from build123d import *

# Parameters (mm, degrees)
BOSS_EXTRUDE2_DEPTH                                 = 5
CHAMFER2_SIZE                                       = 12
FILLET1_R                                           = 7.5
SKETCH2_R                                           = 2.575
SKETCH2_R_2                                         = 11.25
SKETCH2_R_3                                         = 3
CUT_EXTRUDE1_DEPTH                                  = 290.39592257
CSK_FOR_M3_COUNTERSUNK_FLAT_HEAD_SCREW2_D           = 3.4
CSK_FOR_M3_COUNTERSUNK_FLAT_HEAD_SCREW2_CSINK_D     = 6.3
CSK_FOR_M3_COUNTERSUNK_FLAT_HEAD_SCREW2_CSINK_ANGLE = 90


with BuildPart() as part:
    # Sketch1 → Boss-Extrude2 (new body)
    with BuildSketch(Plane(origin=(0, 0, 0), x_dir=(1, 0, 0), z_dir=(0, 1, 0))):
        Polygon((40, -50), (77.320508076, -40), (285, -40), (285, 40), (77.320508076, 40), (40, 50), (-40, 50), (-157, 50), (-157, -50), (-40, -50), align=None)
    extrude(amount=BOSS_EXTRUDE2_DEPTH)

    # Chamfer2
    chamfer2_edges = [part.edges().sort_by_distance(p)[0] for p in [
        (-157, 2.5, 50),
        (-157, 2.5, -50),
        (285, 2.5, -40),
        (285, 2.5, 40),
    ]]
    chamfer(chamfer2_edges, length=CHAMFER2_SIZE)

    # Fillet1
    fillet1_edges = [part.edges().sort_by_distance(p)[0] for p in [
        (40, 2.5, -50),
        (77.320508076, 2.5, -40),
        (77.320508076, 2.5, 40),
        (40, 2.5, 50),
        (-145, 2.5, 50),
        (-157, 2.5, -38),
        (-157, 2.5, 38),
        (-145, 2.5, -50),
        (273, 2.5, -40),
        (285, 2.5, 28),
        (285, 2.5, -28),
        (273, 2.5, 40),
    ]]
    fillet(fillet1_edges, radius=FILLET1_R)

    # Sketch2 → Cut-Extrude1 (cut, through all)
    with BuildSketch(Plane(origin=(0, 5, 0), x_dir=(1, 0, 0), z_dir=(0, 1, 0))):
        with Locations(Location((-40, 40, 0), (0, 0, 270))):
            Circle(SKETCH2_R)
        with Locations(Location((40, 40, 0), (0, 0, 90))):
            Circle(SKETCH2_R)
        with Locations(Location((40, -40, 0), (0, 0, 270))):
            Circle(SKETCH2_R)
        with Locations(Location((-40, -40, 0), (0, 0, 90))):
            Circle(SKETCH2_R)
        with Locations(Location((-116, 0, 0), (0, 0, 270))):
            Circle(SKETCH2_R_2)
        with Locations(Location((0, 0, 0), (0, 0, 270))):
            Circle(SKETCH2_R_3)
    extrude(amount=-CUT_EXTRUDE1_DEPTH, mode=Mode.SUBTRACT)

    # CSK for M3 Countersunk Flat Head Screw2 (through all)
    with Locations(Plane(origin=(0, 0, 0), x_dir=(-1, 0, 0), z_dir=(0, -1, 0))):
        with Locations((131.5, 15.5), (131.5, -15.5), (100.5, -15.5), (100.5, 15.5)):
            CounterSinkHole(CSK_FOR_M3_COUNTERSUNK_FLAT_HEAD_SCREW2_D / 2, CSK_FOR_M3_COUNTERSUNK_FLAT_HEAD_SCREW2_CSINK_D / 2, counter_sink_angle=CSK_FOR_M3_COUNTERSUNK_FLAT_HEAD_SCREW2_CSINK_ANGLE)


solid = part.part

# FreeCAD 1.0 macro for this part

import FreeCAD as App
import Part
import Sketcher
from FreeCAD import Vector
Q = App.Units.Quantity


def edges_at(feature, points):
    """Names of the edges that pass closest to the given points."""
    edges = feature.Shape.Edges
    near = lambda p: min(range(len(edges)), key=lambda i: edges[i].distToShape(Part.Vertex(*p))[0])
    return sorted({f"Edge{near(p) + 1}" for p in points})


def add_polygon(sketch, points):
    """Adds a closed chain of lines whose ends are joined by coincident constraints."""
    first, n = sketch.GeometryCount, len(points)
    for a, b in zip(points, points[1:] + points[:1]):
        sketch.addGeometry(Part.LineSegment(App.Vector(*a, 0), App.Vector(*b, 0)), False)
    for i in range(n):
        sketch.addConstraint(Sketcher.Constraint("Coincident", first + i, 2, first + (i + 1) % n, 1))

doc = App.newDocument("Part")
params = doc.addObject("Spreadsheet::Sheet", "Params")
for row, (alias, value) in enumerate([
    ("sketch1_width", "197 mm"),
    ("sketch1_height", "80 mm"),
    ("sketch1_height2", "100 mm"),
    ("pad1_length", "5 mm"),
    ("chamfer_size", "12 mm"),
    ("fillet_radius", "7.5 mm"),
    ("sketch2_diameter", "6 mm"),
    ("sketch2_diameter2", "22.5 mm"),
    ("sketch2_diameter3", "5.15 mm"),
    ("sketch3_diameter", "3.4 mm"),
    ("hole_diameter", "3.4 mm"),
    ("hole_csink_diameter", "6.3 mm"),
], start=1):
    params.set(f"A{row}", alias)
    params.set(f"B{row}", "=" + value)
    params.setAlias(f"B{row}", alias)

body = doc.addObject("PartDesign::Body", "Body")

sketch1 = body.newObject("Sketcher::SketchObject", "Sketch")
sketch1.AttachmentSupport = (doc.getObject("XZ_Plane"), [""])
sketch1.MapMode = "FlatFace"
add_polygon(sketch1, [(40, 50), (77, 40), (285, 40), (285, -40), (77, -40), (40, -50), (-157, -50), (-157, 50)])
sketch1.addConstraint([
    Sketcher.Constraint("Horizontal", 1),
    Sketcher.Constraint("Vertical", 2),
    Sketcher.Constraint("Horizontal", 3),
    Sketcher.Constraint("Horizontal", 5),
    Sketcher.Constraint("Vertical", 6),
    Sketcher.Constraint("Horizontal", 7),
    Sketcher.Constraint("Symmetric", 0, 2, 3, 2, -1),
    Sketcher.Constraint("Symmetric", 4, 2, 7, 2, -1),
    Sketcher.Constraint("DistanceX", 5, 2, 5, 1, Q("197 mm")),
    Sketcher.Constraint("DistanceY", 2, 2, 2, 1, Q("80 mm")),
    Sketcher.Constraint("DistanceY", 6, 1, 6, 2, Q("100 mm")),
    Sketcher.Constraint("Angle", 0, Q("-15 deg")),
    Sketcher.Constraint("DistanceX", -1, 1, 1, 2, Q("285 mm")),
    Sketcher.Constraint("DistanceX", -1, 1, 4, 2, Q("40 mm")),
])
sketch1.setExpression("Constraints[16]", "Params.sketch1_width")
sketch1.setExpression("Constraints[17]", "Params.sketch1_height")
sketch1.setExpression("Constraints[18]", "Params.sketch1_height2")
pad1 = body.newObject("PartDesign::Pad", "Pad")
pad1.Profile = sketch1
pad1.setExpression("Length", "Params.pad1_length")
pad1.Reversed = True
doc.recompute()

chamfer = body.newObject("PartDesign::Chamfer", "Chamfer")
chamfer.Base = (pad1, edges_at(pad1, [
    (-157, 2.5, 50),
    (-157, 2.5, -50),
    (285, 2.5, -40),
    (285, 2.5, 40),
]))
chamfer.setExpression("Size", "Params.chamfer_size")
doc.recompute()

fillet = body.newObject("PartDesign::Fillet", "Fillet")
fillet.Base = (chamfer, edges_at(chamfer, [
    (40, 2.5, -50),
    (77.321, 2.5, -40),
    (77.321, 2.5, 40),
    (40, 2.5, 50),
    (-145, 2.5, 50),
    (-157, 2.5, -38),
    (-157, 2.5, 38),
    (-145, 2.5, -50),
    (273, 2.5, -40),
    (285, 2.5, 28),
    (285, 2.5, -28),
    (273, 2.5, 40),
]))
fillet.setExpression("Radius", "Params.fillet_radius")

sketch2 = body.newObject("Sketcher::SketchObject", "Sketch001")
sketch2.AttachmentSupport = (doc.getObject("XZ_Plane"), [""])
sketch2.MapMode = "FlatFace"
sketch2.AttachmentOffset = App.Placement(Vector(0, 0, -5), App.Rotation())
sketch2.addGeometry([
    Part.Circle(Vector(-40, -40, 0), Vector(0, 0, 1), 2.6),
    Part.Circle(Vector(40, -40, 0), Vector(0, 0, 1), 2.6),
    Part.Circle(Vector(40, 40, 0), Vector(0, 0, 1), 2.6),
    Part.Circle(Vector(-40, 40, 0), Vector(0, 0, 1), 2.6),
    Part.Circle(Vector(-116, 0, 0), Vector(0, 0, 1), 11.2),
    Part.Circle(Vector(0, 0, 0), Vector(0, 0, 1), 3),
], False)
sketch2.addConstraint([
    Sketcher.Constraint("Coincident", 5, 3, -1, 1),
    Sketcher.Constraint("Equal", 0, 1),
    Sketcher.Constraint("Equal", 1, 2),
    Sketcher.Constraint("Equal", 2, 3),
    Sketcher.Constraint("Symmetric", 0, 3, 2, 3, -1, 1),
    Sketcher.Constraint("Symmetric", 1, 3, 3, 3, -1, 1),
    Sketcher.Constraint("Symmetric", 0, 3, 1, 3, -2),
    Sketcher.Constraint("PointOnObject", 4, 3, -1),
    Sketcher.Constraint("Diameter", 5, Q("6 mm")),
    Sketcher.Constraint("Diameter", 4, Q("22.5 mm")),
    Sketcher.Constraint("Diameter", 0, Q("5.15 mm")),
    Sketcher.Constraint("DistanceX", 0, 3, -1, 1, Q("40 mm")),
    Sketcher.Constraint("DistanceY", 0, 3, -1, 1, Q("40 mm")),
    Sketcher.Constraint("DistanceX", 4, 3, -1, 1, Q("116 mm")),
])
sketch2.setExpression("Constraints[8]", "Params.sketch2_diameter")
sketch2.setExpression("Constraints[9]", "Params.sketch2_diameter2")
sketch2.setExpression("Constraints[10]", "Params.sketch2_diameter3")
pocket1 = body.newObject("PartDesign::Pocket", "Pocket")
pocket1.Profile = sketch2
pocket1.Type = "ThroughAll"
pocket1.Reversed = True

sketch3 = body.newObject("Sketcher::SketchObject", "Sketch002")
sketch3.AttachmentSupport = (doc.getObject("XZ_Plane"), [""])
sketch3.MapMode = "FlatFace"
sketch3.addGeometry([
    Part.Circle(Vector(-131.5, -15.5, 0), Vector(0, 0, 1), 1.7),
    Part.Circle(Vector(-131.5, 15.5, 0), Vector(0, 0, 1), 1.7),
    Part.Circle(Vector(-100.5, 15.5, 0), Vector(0, 0, 1), 1.7),
    Part.Circle(Vector(-100.5, -15.5, 0), Vector(0, 0, 1), 1.7),
], False)
sketch3.addConstraint([
    Sketcher.Constraint("Equal", 0, 1),
    Sketcher.Constraint("Equal", 1, 2),
    Sketcher.Constraint("Equal", 2, 3),
    Sketcher.Constraint("Symmetric", 0, 3, 1, 3, -1),
    Sketcher.Constraint("Symmetric", 2, 3, 3, 3, -1),
    Sketcher.Constraint("Horizontal", 1, 3, 2, 3),
    Sketcher.Constraint("Diameter", 0, Q("3.4 mm")),
    Sketcher.Constraint("DistanceY", 0, 3, 1, 3, Q("31 mm")),
    Sketcher.Constraint("DistanceX", 1, 3, 2, 3, Q("31 mm")),
    Sketcher.Constraint("DistanceX", 0, 3, -1, 1, Q("131.5 mm")),
])
sketch3.setExpression("Constraints[6]", "Params.sketch3_diameter")
doc.recompute()
hole = body.newObject("PartDesign::Hole", "Hole")
hole.Profile = sketch3
hole.ThreadType = "None"
hole.setExpression("Diameter", "Params.hole_diameter")
hole.DepthType = "ThroughAll"
hole.HoleCutType = "Countersink"
hole.setExpression("HoleCutDiameter", "Params.hole_csink_diameter")
hole.HoleCutCountersinkAngle = 90

doc.recompute()
